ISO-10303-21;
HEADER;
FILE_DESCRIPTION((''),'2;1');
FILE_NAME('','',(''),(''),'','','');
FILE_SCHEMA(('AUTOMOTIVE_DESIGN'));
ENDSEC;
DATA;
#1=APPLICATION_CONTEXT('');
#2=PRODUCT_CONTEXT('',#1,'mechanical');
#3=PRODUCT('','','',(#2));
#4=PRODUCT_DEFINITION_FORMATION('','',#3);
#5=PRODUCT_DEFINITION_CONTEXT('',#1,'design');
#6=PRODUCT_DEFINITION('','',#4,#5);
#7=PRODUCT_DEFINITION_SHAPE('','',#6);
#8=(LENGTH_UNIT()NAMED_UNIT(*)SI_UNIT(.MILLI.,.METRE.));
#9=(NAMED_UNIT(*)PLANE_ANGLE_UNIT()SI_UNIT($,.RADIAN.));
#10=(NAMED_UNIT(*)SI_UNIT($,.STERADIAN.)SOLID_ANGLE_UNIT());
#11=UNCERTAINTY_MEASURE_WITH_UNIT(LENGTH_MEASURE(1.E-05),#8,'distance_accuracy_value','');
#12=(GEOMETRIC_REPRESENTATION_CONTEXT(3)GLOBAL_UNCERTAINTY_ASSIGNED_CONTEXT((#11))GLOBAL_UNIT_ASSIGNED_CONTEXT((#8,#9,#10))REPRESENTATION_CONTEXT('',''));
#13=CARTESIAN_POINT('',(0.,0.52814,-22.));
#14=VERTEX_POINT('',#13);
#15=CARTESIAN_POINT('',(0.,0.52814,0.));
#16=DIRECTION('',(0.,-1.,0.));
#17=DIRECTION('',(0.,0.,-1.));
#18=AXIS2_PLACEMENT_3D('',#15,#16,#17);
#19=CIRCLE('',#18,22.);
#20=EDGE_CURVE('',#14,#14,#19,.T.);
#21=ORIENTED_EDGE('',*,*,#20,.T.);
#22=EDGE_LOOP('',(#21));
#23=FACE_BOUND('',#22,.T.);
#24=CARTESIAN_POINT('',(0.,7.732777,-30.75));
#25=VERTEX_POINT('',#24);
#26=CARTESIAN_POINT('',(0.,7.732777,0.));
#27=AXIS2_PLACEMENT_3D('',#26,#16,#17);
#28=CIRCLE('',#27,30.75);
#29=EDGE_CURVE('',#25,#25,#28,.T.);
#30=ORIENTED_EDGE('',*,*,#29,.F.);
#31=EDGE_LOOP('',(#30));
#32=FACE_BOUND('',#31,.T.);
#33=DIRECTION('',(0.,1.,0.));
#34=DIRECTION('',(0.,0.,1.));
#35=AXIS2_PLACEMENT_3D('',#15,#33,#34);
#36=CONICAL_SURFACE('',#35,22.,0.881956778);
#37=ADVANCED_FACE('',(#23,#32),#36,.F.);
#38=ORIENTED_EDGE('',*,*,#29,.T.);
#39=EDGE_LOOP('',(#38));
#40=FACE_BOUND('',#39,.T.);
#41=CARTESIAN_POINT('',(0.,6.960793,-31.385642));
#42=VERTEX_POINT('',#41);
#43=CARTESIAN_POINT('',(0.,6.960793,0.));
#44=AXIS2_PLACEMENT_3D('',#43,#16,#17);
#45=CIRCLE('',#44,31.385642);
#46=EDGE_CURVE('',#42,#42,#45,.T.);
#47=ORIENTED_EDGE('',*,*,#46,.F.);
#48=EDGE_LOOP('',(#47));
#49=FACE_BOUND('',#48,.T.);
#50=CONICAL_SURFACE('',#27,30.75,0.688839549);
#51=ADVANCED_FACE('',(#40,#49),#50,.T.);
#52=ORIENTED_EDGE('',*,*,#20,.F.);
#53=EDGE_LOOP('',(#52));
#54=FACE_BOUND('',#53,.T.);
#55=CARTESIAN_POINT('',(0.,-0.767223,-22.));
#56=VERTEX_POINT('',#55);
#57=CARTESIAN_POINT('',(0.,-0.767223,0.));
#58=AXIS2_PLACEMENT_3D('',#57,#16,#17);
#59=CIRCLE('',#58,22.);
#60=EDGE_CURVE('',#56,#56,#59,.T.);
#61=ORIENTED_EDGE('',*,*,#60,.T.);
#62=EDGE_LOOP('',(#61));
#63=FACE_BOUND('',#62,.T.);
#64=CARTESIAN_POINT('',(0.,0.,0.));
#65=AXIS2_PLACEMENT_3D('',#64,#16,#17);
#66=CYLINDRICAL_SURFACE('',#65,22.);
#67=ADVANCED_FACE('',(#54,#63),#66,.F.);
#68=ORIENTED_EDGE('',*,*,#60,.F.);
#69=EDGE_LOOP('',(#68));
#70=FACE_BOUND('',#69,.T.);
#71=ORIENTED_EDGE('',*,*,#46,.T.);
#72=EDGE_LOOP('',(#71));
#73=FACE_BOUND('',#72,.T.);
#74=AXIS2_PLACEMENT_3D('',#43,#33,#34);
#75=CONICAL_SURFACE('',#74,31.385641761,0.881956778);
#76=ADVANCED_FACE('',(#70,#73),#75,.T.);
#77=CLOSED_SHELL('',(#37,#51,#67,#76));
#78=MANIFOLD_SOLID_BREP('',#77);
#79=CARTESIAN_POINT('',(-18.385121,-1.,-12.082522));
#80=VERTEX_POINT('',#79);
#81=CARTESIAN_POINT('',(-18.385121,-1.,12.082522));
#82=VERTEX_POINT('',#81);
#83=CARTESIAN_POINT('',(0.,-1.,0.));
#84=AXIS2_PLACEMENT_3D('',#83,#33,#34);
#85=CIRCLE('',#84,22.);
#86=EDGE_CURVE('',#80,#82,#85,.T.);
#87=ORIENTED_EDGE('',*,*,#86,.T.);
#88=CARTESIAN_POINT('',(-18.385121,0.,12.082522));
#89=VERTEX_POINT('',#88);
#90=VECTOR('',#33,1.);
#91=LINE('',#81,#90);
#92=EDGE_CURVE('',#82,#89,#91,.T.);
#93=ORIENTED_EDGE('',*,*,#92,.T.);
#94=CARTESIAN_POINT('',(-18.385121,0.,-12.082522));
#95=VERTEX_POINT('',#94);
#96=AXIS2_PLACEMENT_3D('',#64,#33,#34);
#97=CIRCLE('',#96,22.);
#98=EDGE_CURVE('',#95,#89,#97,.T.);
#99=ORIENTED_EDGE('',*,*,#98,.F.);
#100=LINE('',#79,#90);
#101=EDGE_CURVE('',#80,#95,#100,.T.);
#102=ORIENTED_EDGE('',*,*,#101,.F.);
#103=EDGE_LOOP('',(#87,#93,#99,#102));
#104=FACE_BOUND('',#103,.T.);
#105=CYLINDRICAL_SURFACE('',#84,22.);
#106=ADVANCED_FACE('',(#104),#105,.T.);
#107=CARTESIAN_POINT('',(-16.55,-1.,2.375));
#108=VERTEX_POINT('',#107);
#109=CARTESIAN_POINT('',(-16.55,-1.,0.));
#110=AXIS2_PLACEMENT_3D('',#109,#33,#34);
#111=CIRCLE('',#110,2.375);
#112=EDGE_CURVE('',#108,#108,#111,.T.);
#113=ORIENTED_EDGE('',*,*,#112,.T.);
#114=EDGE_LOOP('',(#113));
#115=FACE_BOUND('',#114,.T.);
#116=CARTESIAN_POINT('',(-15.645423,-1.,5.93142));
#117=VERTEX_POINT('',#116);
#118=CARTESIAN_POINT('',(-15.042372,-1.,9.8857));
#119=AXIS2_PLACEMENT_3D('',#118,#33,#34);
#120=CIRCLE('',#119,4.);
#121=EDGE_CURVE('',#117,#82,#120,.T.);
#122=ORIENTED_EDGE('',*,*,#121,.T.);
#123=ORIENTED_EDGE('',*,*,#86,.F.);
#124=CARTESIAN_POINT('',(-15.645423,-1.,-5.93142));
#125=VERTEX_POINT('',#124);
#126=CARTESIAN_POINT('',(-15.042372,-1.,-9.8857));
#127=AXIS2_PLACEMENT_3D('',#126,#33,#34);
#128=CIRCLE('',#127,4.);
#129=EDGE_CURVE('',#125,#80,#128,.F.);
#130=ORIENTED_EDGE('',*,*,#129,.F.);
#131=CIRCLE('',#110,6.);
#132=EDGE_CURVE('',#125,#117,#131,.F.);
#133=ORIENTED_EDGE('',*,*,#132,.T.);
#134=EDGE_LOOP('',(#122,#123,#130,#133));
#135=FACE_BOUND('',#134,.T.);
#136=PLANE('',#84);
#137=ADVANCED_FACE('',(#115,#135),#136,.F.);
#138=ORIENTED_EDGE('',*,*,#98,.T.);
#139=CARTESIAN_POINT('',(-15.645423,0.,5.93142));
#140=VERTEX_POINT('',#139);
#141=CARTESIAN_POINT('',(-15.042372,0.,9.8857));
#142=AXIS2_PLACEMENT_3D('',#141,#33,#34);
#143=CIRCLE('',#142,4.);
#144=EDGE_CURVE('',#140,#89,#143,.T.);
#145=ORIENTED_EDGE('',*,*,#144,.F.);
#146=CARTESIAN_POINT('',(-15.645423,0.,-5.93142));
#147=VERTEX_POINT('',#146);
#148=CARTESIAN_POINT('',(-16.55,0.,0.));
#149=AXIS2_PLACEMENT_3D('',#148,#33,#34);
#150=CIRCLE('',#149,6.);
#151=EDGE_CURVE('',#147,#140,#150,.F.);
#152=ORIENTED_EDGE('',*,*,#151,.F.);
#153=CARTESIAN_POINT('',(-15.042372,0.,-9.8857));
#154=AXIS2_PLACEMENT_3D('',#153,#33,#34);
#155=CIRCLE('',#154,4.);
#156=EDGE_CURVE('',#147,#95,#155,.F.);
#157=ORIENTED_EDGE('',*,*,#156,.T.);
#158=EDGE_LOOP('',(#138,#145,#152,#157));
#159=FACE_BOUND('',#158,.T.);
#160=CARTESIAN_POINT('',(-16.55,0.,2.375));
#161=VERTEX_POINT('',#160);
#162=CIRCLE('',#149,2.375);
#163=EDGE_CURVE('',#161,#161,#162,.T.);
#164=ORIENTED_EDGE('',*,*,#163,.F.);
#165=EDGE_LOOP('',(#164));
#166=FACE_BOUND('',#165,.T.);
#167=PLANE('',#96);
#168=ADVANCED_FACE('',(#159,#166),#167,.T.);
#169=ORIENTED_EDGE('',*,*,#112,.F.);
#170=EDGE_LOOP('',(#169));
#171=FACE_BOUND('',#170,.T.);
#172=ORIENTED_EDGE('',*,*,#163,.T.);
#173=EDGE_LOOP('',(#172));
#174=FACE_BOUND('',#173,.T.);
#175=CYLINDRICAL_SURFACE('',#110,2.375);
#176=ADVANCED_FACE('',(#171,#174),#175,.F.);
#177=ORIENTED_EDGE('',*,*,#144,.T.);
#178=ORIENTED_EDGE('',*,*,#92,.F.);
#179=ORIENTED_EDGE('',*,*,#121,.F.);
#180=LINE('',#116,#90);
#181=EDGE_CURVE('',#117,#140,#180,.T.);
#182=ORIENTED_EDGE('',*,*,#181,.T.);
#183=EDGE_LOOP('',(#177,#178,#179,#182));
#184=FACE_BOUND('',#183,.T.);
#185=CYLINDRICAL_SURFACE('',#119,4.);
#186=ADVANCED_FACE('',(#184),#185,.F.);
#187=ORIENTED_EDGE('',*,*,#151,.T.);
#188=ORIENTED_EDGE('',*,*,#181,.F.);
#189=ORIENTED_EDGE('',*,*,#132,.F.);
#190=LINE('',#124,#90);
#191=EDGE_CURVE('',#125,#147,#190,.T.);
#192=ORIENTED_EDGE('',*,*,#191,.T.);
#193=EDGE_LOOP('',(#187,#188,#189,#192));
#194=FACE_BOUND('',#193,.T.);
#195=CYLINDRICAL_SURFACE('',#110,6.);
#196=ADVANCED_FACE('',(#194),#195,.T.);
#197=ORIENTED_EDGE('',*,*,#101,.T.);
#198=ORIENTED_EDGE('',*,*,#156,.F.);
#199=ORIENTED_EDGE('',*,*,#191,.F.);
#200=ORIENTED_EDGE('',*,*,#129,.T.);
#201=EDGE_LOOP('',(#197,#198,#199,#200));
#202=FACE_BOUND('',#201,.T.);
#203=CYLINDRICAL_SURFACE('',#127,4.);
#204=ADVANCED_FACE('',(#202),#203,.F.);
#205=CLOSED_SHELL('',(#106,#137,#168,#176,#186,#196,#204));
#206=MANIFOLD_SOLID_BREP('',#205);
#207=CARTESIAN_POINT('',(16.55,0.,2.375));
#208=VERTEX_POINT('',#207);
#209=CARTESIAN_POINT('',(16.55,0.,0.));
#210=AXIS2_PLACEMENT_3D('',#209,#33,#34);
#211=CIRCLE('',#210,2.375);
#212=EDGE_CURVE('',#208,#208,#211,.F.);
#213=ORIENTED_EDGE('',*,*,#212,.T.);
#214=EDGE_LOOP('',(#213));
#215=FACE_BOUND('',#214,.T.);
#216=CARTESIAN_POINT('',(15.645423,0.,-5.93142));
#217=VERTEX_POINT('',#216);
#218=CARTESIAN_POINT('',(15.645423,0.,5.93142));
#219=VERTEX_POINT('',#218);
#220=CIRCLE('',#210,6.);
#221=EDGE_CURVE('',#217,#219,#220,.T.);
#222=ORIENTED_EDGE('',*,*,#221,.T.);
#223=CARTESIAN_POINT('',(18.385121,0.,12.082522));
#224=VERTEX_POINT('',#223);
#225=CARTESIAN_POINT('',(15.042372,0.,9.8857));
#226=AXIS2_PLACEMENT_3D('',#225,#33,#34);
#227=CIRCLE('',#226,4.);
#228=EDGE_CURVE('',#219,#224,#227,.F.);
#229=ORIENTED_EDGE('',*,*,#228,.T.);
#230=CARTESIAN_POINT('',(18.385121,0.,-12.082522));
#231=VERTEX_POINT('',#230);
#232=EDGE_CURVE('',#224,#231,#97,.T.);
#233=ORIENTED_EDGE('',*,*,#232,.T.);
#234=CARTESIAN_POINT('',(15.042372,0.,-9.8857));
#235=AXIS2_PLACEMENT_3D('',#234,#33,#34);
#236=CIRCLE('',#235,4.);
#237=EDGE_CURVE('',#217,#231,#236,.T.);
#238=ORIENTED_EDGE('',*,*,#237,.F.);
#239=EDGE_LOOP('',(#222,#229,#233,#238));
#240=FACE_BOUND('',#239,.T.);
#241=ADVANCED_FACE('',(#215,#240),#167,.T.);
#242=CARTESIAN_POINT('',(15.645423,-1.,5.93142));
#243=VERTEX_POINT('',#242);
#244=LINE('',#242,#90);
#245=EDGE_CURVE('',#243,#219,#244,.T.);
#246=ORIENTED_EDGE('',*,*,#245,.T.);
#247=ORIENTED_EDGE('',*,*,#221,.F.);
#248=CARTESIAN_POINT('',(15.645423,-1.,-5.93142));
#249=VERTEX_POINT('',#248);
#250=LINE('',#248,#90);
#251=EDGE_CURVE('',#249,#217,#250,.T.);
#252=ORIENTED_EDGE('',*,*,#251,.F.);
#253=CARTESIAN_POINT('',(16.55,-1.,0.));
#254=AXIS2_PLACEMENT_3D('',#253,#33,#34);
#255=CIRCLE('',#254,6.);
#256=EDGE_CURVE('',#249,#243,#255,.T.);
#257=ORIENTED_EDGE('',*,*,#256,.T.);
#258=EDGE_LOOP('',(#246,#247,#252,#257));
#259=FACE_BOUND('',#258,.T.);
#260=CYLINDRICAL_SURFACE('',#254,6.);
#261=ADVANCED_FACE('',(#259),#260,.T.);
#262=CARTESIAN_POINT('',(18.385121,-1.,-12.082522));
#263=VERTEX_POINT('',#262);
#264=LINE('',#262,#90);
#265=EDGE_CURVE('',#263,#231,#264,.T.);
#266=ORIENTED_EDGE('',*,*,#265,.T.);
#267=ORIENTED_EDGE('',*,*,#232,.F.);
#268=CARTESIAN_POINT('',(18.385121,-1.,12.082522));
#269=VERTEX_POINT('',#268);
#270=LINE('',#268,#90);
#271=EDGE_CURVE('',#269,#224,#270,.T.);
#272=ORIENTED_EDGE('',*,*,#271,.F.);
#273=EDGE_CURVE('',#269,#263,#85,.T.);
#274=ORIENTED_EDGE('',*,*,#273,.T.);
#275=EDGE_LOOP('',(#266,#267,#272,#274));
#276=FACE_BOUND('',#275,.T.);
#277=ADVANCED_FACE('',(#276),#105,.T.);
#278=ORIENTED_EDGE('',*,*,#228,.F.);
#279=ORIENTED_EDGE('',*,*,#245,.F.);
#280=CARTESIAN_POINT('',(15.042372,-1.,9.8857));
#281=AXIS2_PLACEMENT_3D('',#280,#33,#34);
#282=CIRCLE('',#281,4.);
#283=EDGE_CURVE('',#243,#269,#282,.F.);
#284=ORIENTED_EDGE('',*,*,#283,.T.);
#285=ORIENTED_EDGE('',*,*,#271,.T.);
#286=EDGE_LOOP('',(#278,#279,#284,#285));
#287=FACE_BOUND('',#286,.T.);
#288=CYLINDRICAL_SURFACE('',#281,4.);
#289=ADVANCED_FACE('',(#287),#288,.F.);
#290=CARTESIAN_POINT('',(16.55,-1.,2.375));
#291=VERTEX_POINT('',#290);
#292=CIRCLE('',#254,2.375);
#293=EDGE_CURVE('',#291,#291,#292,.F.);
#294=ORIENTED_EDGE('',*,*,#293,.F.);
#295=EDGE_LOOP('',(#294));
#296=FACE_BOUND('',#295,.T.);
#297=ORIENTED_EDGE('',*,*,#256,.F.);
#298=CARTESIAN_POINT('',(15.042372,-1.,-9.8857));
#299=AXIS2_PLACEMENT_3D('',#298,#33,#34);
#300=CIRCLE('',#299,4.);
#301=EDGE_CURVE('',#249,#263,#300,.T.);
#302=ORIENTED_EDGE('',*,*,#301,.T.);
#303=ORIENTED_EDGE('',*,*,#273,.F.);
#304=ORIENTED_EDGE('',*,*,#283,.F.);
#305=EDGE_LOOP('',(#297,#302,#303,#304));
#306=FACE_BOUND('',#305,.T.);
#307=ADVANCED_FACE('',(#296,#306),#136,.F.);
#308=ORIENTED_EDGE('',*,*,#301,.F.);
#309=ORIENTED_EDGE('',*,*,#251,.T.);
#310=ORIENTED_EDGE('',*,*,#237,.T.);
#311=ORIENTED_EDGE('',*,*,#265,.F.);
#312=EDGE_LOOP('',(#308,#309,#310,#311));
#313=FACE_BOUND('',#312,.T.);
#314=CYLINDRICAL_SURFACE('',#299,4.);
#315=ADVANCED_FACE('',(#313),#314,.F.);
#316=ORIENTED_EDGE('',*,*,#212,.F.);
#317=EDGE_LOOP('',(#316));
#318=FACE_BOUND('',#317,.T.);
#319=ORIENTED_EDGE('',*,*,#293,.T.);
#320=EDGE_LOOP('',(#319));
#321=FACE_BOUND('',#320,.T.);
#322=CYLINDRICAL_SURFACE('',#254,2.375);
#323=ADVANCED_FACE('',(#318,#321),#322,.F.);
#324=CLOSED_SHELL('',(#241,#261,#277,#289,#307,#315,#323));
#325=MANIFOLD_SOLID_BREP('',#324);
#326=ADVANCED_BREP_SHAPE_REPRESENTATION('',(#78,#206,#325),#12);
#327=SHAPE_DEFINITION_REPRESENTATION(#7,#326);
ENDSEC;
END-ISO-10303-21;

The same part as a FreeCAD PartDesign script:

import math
import FreeCAD as App
import Part
import Sketcher

V = App.Vector
Q = App.Units.Quantity


def add_polygon(sketch, points):
    """Adds a closed chain of lines whose ends are joined by coincident constraints."""
    first, n = sketch.GeometryCount, len(points)
    for a, b in zip(points, points[1:] + points[:1]):
        sketch.addGeometry(Part.LineSegment(App.Vector(*a, 0), App.Vector(*b, 0)), False)
    for i in range(n):
        sketch.addConstraint(Sketcher.Constraint("Coincident", first + i, 2, first + (i + 1) % n, 1))

doc = App.newDocument("Part")
params = doc.addObject("Spreadsheet::Sheet", "Params")
for row, (alias, value) in enumerate([
    ("sketch1_length", "1 mm"),
    ("revolution_angle", "360 deg"),
    ("sketch2_radius", "6 mm"),
    ("sketch2_radius2", "4 mm"),
    ("sketch2_radius3", "22 mm"),
    ("sketch2_diameter", "4.75 mm"),
    ("pad1_length", "1 mm"),
    ("sketch3_radius", "22 mm"),
    ("sketch3_radius2", "4 mm"),
    ("sketch3_radius3", "6 mm"),
    ("sketch3_diameter", "4.75 mm"),
    ("pad2_length", "1 mm"),
], start=1):
    params.set(f"A{row}", alias)
    params.set(f"B{row}", "=" + value)
    params.setAlias(f"B{row}", alias)

body = doc.addObject("PartDesign::Body", "Body")

sketch1 = body.newObject("Sketcher::SketchObject", "Sketch")
sketch1.AttachmentSupport = (doc.getObject("YZ_Plane"), [""])
sketch1.MapMode = "FlatFace"
add_polygon(sketch1, [(7, 31.4), (-0.8, 22), (0.5, 22), (7.7, 30.8)])
sketch1.addConstraint(Sketcher.Constraint("Horizontal", 1))
sketch1.addConstraint(Sketcher.Constraint("Parallel", 0, 2))
sketch1.addConstraint(Sketcher.Constraint("Perpendicular", 2, 3))
sketch1.addConstraint(Sketcher.Constraint("Distance", 3, Q("1 mm")))
sketch1.addConstraint(Sketcher.Constraint("DistanceY", -1, 1, 0, 2, Q("22 mm")))
sketch1.addConstraint(Sketcher.Constraint("DistanceX", 0, 2, 2, 2, Q("8.5 mm")))
sketch1.addConstraint(Sketcher.Constraint("DistanceY", -1, 1, 2, 2, Q("30.75 mm")))
sketch1.addConstraint(Sketcher.Constraint("DistanceX", -1, 1, 1, 2, Q("0.52814 mm")))
sketch1.setExpression("Constraints[7]", "Params.sketch1_length")
revolution = body.newObject("PartDesign::Revolution", "Revolution")
revolution.Profile = sketch1
revolution.ReferenceAxis = (sketch1, ["H_Axis"])
revolution.setExpression("Angle", "Params.revolution_angle")
body2 = doc.addObject("PartDesign::Body", "Body001")

sketch2 = body2.newObject("Sketcher::SketchObject", "Sketch001")
sketch2.AttachmentSupport = (doc.getObject("XZ_Plane001"), [""])
sketch2.MapMode = "FlatFace"
sketch2.addGeometry(Part.ArcOfCircle(Part.Circle(V(-16.6, 0, 0), V(0, 0, 1), 6), math.radians(-81), math.radians(81)), False)
sketch2.addGeometry(Part.ArcOfCircle(Part.Circle(V(-15, -9.9, 0), V(0, 0, 1), 4), math.radians(99), math.radians(213)), False)
sketch2.addGeometry(Part.ArcOfCircle(Part.Circle(V(0, 0, 0), V(0, 0, 1), 22), math.radians(147), math.radians(213)), False)
sketch2.addGeometry(Part.ArcOfCircle(Part.Circle(V(-15, 9.9, 0), V(0, 0, 1), 4), math.radians(147), math.radians(261)), False)
sketch2.addGeometry(Part.Circle(V(-16.6, 0, 0), V(0, 0, 1), 2.4), False)
sketch2.addConstraint(Sketcher.Constraint("Tangent", 0, 1, 1, 1))
sketch2.addConstraint(Sketcher.Constraint("Tangent", 1, 2, 2, 2))
sketch2.addConstraint(Sketcher.Constraint("Tangent", 2, 1, 3, 1))
sketch2.addConstraint(Sketcher.Constraint("Tangent", 3, 2, 0, 2))
sketch2.addConstraint(Sketcher.Constraint("Coincident", 2, 3, -1, 1))
sketch2.addConstraint(Sketcher.Constraint("Coincident", 4, 3, 0, 3))
sketch2.addConstraint(Sketcher.Constraint("Equal", 1, 3))
sketch2.addConstraint(Sketcher.Constraint("PointOnObject", 0, 3, -1))
sketch2.addConstraint(Sketcher.Constraint("Radius", 0, Q("6 mm")))
sketch2.addConstraint(Sketcher.Constraint("Radius", 1, Q("4 mm")))
sketch2.addConstraint(Sketcher.Constraint("Radius", 2, Q("22 mm")))
sketch2.addConstraint(Sketcher.Constraint("Diameter", 4, Q("4.75 mm")))
sketch2.addConstraint(Sketcher.Constraint("DistanceX", 0, 3, -1, 1, Q("16.55 mm")))
sketch2.setExpression("Constraints[8]", "Params.sketch2_radius")
sketch2.setExpression("Constraints[9]", "Params.sketch2_radius2")
sketch2.setExpression("Constraints[10]", "Params.sketch2_radius3")
sketch2.setExpression("Constraints[11]", "Params.sketch2_diameter")
pad1 = body2.newObject("PartDesign::Pad", "Pad")
pad1.Profile = sketch2
pad1.setExpression("Length", "Params.pad1_length")
body3 = doc.addObject("PartDesign::Body", "Body002")

sketch3 = body3.newObject("Sketcher::SketchObject", "Sketch002")
sketch3.AttachmentSupport = (doc.getObject("XZ_Plane002"), [""])
sketch3.MapMode = "FlatFace"
sketch3.addGeometry(Part.ArcOfCircle(Part.Circle(V(0, 0, 0), V(0, 0, 1), 22), math.radians(-33), math.radians(0)), False)
sketch3.addGeometry(Part.ArcOfCircle(Part.Circle(V(15, -9.9, 0), V(0, 0, 1), 4), math.radians(-33), math.radians(81)), False)
sketch3.addGeometry(Part.ArcOfCircle(Part.Circle(V(16.6, 0, 0), V(0, 0, 1), 6), math.radians(99), math.radians(261)), False)
sketch3.addGeometry(Part.ArcOfCircle(Part.Circle(V(15, 9.9, 0), V(0, 0, 1), 4), math.radians(-81), math.radians(33)), False)
sketch3.addGeometry(Part.ArcOfCircle(Part.Circle(V(0, 0, 0), V(0, 0, 1), 22), math.radians(0), math.radians(33)), False)
sketch3.addGeometry(Part.Circle(V(16.6, 0, 0), V(0, 0, 1), 2.4), False)
sketch3.addConstraint(Sketcher.Constraint("Tangent", 0, 1, 1, 1))
sketch3.addConstraint(Sketcher.Constraint("Tangent", 1, 2, 2, 2))
sketch3.addConstraint(Sketcher.Constraint("Tangent", 2, 1, 3, 1))
sketch3.addConstraint(Sketcher.Constraint("Tangent", 3, 2, 4, 2))
sketch3.addConstraint(Sketcher.Constraint("Tangent", 4, 1, 0, 2))
sketch3.addConstraint(Sketcher.Constraint("Coincident", 0, 3, -1, 1))
sketch3.addConstraint(Sketcher.Constraint("Coincident", 5, 3, 2, 3))
sketch3.addConstraint(Sketcher.Constraint("Equal", 1, 3))
sketch3.addConstraint(Sketcher.Constraint("Equal", 0, 4))
sketch3.addConstraint(Sketcher.Constraint("PointOnObject", 2, 3, -1))
sketch3.addConstraint(Sketcher.Constraint("PointOnObject", 4, 1, -1))
sketch3.addConstraint(Sketcher.Constraint("Radius", 0, Q("22 mm")))
sketch3.addConstraint(Sketcher.Constraint("Radius", 1, Q("4 mm")))
sketch3.addConstraint(Sketcher.Constraint("Radius", 2, Q("6 mm")))
sketch3.addConstraint(Sketcher.Constraint("Diameter", 5, Q("4.75 mm")))
sketch3.addConstraint(Sketcher.Constraint("DistanceX", -1, 1, 2, 3, Q("16.55 mm")))
sketch3.setExpression("Constraints[11]", "Params.sketch3_radius")
sketch3.setExpression("Constraints[12]", "Params.sketch3_radius2")
sketch3.setExpression("Constraints[13]", "Params.sketch3_radius3")
sketch3.setExpression("Constraints[14]", "Params.sketch3_diameter")
pad2 = body3.newObject("PartDesign::Pad", "Pad001")
pad2.Profile = sketch3
pad2.setExpression("Length", "Params.pad2_length")

doc.recompute()
